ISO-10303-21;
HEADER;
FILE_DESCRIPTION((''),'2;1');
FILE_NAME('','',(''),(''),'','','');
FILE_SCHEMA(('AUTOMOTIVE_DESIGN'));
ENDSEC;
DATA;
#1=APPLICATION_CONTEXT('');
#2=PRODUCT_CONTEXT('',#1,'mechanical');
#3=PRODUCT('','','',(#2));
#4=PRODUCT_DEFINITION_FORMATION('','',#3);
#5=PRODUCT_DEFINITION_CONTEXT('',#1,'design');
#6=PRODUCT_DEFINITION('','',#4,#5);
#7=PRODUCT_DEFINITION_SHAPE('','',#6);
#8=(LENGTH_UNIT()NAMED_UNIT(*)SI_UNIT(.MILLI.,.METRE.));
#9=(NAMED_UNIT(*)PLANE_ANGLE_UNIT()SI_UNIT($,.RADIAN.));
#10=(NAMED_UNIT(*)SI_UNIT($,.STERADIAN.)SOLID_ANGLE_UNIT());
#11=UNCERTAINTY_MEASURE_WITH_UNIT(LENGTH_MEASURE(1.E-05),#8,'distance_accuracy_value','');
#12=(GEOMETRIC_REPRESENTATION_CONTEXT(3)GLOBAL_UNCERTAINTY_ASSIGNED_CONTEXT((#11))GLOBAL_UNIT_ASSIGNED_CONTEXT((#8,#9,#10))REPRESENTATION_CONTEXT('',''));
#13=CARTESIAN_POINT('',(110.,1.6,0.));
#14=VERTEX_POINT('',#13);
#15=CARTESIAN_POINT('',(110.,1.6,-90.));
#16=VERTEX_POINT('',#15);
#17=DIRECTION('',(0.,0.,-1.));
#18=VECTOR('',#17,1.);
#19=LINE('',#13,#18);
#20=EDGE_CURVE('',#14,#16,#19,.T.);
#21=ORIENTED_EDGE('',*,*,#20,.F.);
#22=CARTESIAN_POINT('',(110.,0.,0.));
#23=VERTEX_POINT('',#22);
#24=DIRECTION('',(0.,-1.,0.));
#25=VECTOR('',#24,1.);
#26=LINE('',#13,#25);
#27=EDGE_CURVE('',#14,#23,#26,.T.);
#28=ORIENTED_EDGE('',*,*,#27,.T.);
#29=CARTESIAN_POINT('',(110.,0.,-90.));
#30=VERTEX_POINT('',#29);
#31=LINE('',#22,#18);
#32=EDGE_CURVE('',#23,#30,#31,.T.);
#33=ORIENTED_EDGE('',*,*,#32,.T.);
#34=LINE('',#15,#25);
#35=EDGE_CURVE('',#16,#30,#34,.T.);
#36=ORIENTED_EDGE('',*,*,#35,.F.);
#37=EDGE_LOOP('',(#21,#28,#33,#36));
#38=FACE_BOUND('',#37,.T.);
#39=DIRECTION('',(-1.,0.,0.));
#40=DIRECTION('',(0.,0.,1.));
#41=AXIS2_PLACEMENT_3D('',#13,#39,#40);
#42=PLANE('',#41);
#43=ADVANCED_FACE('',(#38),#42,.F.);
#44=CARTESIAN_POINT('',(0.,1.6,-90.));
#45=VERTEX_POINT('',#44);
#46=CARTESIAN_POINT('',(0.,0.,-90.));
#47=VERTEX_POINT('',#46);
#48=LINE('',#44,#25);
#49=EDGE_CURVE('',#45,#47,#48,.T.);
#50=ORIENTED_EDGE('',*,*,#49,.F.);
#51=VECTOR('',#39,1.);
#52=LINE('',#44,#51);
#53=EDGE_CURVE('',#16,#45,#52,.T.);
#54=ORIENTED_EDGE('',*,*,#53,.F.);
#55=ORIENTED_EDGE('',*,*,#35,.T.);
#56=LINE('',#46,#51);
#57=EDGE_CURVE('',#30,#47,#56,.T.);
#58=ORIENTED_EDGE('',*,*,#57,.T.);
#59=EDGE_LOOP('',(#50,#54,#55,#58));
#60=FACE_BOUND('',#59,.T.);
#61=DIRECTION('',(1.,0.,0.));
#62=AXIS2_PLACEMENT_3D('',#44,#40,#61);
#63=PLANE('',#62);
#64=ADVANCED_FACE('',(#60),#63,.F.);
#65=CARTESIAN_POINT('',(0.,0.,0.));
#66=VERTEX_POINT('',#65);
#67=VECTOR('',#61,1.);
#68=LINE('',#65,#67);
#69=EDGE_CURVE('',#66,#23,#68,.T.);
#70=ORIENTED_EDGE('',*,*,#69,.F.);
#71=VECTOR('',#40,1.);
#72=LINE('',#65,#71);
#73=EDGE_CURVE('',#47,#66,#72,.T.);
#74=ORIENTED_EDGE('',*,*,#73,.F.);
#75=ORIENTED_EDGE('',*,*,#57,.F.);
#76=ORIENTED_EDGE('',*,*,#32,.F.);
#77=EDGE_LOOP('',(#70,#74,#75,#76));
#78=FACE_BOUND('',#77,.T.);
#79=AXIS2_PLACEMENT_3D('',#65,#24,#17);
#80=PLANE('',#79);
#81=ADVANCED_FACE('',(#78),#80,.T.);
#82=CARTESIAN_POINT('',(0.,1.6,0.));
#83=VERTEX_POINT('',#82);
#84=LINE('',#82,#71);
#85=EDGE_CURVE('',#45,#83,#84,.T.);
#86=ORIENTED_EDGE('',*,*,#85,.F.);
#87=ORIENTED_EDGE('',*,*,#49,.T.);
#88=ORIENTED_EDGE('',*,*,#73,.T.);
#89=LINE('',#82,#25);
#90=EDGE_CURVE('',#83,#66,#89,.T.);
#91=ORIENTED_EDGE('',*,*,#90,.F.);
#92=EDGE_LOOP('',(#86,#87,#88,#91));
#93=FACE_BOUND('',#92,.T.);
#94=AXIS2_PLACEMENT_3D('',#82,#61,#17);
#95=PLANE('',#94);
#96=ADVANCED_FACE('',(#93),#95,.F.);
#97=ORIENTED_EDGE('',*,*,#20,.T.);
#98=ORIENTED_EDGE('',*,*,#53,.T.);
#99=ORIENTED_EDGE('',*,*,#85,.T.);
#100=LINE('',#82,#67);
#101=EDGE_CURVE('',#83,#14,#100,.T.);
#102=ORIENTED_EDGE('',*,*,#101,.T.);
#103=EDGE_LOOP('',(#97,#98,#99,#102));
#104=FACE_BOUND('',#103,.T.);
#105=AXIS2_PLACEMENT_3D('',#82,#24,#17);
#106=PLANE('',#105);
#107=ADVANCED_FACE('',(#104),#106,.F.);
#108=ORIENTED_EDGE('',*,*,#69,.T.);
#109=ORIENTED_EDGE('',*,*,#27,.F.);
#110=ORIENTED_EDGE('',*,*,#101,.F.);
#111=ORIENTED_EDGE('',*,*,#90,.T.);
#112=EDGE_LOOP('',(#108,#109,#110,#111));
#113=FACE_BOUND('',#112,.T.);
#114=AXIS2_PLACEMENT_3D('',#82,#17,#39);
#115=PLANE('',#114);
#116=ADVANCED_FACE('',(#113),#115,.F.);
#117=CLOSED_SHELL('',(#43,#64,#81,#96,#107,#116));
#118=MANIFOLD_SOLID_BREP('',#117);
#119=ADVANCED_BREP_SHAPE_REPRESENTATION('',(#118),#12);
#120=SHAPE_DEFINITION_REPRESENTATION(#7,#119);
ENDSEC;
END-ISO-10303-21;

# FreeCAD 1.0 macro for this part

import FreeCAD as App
import Part
import Sketcher
from FreeCAD import Vector

doc = App.newDocument("Part")
params = doc.addObject("Spreadsheet::Sheet", "Params")
for row, (alias, value) in enumerate([
    ("sketch1_width", "110 mm"),
    ("sketch1_height", "90 mm"),
    ("pad1_length", "1.6 mm"),
], start=1):
    params.set(f"A{row}", alias)
    params.set(f"B{row}", "=" + value)
    params.setAlias(f"B{row}", alias)

body = doc.addObject("PartDesign::Body", "Body")

sketch1 = body.newObject("Sketcher::SketchObject", "Sketch")
sketch1.AttachmentSupport = (doc.getObject("XZ_Plane"), [""])
sketch1.MapMode = "FlatFace"
sketch1.addGeometry(Part.LineSegment(Vector(0, -90, 0), Vector(0, 0, 0)), False)
sketch1.addGeometry(Part.LineSegment(Vector(0, 0, 0), Vector(110, 0, 0)), False)
sketch1.addGeometry(Part.LineSegment(Vector(110, 0, 0), Vector(110, -90, 0)), False)
sketch1.addGeometry(Part.LineSegment(Vector(110, -90, 0), Vector(0, -90, 0)), False)
sketch1.addConstraint(Sketcher.Constraint("Coincident", 0, 2, 1, 1))
sketch1.addConstraint(Sketcher.Constraint("Coincident", 1, 2, 2, 1))
sketch1.addConstraint(Sketcher.Constraint("Coincident", 2, 2, 3, 1))
sketch1.addConstraint(Sketcher.Constraint("Coincident", 3, 2, 0, 1))
sketch1.addConstraint(Sketcher.Constraint("Vertical", 0))
sketch1.addConstraint(Sketcher.Constraint("Horizontal", 1))
sketch1.addConstraint(Sketcher.Constraint("Vertical", 2))
sketch1.addConstraint(Sketcher.Constraint("Horizontal", 3))
sketch1.addConstraint(Sketcher.Constraint("Coincident", 0, 2, -1, 1))
sketch1.addConstraint(Sketcher.Constraint("DistanceX", 1, 1, 1, 2, 110.0))
sketch1.addConstraint(Sketcher.Constraint("DistanceY", 0, 1, 0, 2, 90.0))
sketch1.setExpression("Constraints[9]", "Params.sketch1_width")
sketch1.setExpression("Constraints[10]", "Params.sketch1_height")
pad1 = body.newObject("PartDesign::Pad", "Pad")
pad1.Profile = sketch1
pad1.setExpression("Length", "Params.pad1_length")
pad1.Reversed = True

doc.recompute()
